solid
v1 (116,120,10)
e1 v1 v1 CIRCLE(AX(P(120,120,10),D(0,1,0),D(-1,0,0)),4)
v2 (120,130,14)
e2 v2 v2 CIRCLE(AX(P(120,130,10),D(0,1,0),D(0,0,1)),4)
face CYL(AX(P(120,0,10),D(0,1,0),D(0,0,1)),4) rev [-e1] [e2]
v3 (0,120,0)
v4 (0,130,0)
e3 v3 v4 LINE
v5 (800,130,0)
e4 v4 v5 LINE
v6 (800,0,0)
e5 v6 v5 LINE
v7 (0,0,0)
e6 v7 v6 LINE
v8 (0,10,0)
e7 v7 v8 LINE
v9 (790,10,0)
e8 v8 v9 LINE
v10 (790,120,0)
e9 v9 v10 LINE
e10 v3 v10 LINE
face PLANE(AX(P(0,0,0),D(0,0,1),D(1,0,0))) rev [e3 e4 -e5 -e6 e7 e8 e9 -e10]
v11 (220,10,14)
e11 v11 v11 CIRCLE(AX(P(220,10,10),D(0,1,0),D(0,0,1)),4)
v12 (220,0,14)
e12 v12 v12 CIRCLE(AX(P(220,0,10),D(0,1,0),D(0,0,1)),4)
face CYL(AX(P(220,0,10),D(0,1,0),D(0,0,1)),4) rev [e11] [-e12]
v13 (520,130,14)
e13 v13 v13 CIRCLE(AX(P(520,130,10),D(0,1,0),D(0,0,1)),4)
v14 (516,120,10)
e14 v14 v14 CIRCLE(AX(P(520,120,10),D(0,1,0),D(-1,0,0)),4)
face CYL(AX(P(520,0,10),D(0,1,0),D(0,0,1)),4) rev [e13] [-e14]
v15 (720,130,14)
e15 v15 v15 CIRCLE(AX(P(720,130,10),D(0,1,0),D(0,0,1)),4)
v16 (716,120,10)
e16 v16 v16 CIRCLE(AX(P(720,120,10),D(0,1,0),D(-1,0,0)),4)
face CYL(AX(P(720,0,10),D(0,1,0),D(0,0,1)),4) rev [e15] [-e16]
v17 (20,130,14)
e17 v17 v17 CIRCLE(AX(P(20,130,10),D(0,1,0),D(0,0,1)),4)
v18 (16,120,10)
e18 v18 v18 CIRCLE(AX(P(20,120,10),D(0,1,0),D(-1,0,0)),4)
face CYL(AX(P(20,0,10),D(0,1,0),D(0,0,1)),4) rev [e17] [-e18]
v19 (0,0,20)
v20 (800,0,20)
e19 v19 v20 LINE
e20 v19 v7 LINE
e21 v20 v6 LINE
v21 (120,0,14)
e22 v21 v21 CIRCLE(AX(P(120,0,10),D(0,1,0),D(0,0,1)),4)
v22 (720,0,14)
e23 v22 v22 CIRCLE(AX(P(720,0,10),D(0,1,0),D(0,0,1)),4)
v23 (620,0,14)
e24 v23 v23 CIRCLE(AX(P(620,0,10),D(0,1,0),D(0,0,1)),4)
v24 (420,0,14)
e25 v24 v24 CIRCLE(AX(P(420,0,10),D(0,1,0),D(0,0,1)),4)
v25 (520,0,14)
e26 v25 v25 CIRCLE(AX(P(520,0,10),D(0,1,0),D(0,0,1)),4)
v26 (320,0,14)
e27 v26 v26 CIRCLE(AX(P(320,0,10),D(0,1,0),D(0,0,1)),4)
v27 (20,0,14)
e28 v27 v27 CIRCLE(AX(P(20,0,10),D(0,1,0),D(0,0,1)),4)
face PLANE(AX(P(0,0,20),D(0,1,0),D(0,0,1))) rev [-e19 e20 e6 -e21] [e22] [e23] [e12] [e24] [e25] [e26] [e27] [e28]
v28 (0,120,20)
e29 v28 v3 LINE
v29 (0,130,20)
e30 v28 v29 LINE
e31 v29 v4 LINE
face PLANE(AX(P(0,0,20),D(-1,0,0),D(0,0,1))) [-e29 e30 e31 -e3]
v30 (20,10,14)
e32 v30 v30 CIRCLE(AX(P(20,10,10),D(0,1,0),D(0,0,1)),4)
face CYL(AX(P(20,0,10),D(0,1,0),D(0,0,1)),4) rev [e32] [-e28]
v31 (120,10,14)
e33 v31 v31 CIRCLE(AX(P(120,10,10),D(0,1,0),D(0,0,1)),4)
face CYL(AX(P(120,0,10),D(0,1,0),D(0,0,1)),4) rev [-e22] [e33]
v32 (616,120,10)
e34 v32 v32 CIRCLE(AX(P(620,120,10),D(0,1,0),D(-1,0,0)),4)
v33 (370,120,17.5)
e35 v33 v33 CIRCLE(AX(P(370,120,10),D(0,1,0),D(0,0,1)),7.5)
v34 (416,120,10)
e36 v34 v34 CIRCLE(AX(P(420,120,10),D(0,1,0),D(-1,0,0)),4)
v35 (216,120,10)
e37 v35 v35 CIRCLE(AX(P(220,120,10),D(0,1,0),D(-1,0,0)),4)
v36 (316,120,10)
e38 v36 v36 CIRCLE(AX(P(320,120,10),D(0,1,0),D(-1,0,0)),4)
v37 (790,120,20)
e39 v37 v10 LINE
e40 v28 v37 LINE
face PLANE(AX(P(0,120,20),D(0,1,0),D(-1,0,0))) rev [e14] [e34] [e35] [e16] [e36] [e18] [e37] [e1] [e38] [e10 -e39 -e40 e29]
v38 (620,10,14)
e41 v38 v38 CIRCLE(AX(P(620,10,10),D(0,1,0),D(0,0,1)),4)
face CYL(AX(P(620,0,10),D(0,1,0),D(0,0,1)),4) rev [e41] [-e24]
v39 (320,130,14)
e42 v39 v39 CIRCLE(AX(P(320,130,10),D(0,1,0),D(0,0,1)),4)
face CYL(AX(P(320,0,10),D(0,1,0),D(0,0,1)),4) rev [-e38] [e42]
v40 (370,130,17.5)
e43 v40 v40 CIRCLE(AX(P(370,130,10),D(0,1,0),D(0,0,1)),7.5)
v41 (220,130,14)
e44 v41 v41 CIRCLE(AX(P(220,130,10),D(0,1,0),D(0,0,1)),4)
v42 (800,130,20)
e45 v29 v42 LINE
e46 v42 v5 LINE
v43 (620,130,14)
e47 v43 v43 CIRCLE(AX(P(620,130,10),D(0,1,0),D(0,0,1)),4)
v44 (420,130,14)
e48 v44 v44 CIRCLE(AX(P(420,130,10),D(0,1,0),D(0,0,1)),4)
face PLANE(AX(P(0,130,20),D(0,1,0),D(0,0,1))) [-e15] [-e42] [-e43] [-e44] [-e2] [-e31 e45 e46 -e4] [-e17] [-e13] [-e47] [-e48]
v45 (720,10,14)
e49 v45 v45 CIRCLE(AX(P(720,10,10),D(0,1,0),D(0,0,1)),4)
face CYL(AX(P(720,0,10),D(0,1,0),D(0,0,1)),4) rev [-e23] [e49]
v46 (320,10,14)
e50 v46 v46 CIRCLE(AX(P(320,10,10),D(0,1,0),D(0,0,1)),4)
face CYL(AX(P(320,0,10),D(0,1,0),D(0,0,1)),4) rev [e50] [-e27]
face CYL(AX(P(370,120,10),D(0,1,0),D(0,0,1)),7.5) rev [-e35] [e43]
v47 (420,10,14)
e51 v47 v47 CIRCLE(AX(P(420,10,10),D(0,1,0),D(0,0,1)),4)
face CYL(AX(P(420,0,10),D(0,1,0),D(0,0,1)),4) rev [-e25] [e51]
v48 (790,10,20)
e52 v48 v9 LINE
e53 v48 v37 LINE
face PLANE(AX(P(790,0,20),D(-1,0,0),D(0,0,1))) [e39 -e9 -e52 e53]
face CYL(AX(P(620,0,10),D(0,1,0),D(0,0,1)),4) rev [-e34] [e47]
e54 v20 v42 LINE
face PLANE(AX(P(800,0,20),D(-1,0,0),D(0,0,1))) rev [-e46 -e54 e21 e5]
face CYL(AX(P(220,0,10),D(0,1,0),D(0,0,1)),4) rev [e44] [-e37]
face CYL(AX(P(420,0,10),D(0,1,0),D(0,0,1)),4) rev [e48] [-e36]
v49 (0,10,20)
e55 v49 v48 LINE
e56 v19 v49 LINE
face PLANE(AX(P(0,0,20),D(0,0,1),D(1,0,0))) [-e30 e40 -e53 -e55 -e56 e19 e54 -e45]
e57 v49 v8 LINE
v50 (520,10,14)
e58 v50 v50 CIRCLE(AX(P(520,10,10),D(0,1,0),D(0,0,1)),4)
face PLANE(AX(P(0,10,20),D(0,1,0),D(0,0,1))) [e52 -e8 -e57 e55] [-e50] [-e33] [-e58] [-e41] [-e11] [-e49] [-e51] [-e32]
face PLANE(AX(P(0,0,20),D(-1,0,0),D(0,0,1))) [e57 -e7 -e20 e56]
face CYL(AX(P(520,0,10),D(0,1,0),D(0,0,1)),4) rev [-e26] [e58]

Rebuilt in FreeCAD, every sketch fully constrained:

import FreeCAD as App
import Part
import Sketcher
from FreeCAD import Vector


def add_polygon(sketch, points):
    """Adds a closed chain of lines whose ends are joined by coincident constraints."""
    first, n = sketch.GeometryCount, len(points)
    for a, b in zip(points, points[1:] + points[:1]):
        sketch.addGeometry(Part.LineSegment(App.Vector(*a, 0), App.Vector(*b, 0)), False)
    for i in range(n):
        sketch.addConstraint(Sketcher.Constraint("Coincident", first + i, 2, first + (i + 1) % n, 1))

doc = App.newDocument("Part")
body = doc.addObject("PartDesign::Body", "Body")

sketch1 = body.newObject("Sketcher::SketchObject", "Sketch")
sketch1.AttachmentSupport = (doc.getObject("XY_Plane"), [""])
sketch1.MapMode = "FlatFace"
add_polygon(sketch1, [(0, 130), (0, 120), (790, 120), (790, 10), (0, 10), (0, 0), (800, 0), (800, 130)])
sketch1.addConstraint(Sketcher.Constraint("Vertical", 0))
sketch1.addConstraint(Sketcher.Constraint("Horizontal", 1))
sketch1.addConstraint(Sketcher.Constraint("Vertical", 2))
sketch1.addConstraint(Sketcher.Constraint("Horizontal", 3))
sketch1.addConstraint(Sketcher.Constraint("Vertical", 4))
sketch1.addConstraint(Sketcher.Constraint("Horizontal", 5))
sketch1.addConstraint(Sketcher.Constraint("Vertical", 6))
sketch1.addConstraint(Sketcher.Constraint("Horizontal", 7))
sketch1.addConstraint(Sketcher.Constraint("Coincident", 4, 2, -1, 1))
sketch1.addConstraint(Sketcher.Constraint("PointOnObject", 0, 2, -2))
sketch1.addConstraint(Sketcher.Constraint("Equal", 0, 4))
sketch1.addConstraint(Sketcher.Constraint("DistanceX", 1, 1, 1, 2, 790.0))
sketch1.addConstraint(Sketcher.Constraint("DistanceX", 5, 1, 5, 2, 800.0))
sketch1.addConstraint(Sketcher.Constraint("DistanceY", 0, 2, 0, 1, 10.0))
sketch1.addConstraint(Sketcher.Constraint("DistanceY", 2, 2, 2, 1, 110.0))
pad1 = body.newObject("PartDesign::Pad", "Pad")
pad1.Profile = sketch1
pad1.Length = 20

sketch2 = body.newObject("Sketcher::SketchObject", "Sketch001")
sketch2.AttachmentSupport = (doc.getObject("XZ_Plane"), [""])
sketch2.MapMode = "FlatFace"
sketch2.AttachmentOffset = App.Placement(Vector(0, 0, -130), App.Rotation())
sketch2.addGeometry(Part.Circle(Vector(20, 10, 0), Vector(0, 0, 1), 4), False)
sketch2.addConstraint(Sketcher.Constraint("Diameter", 0, 8.0))
sketch2.addConstraint(Sketcher.Constraint("DistanceX", -1, 1, 0, 3, 20.0))
sketch2.addConstraint(Sketcher.Constraint("DistanceY", -1, 1, 0, 3, 10.0))
pocket1 = body.newObject("PartDesign::Pocket", "Pocket")
pocket1.Profile = sketch2
pocket1.Type = "ThroughAll"
pocket1.Reversed = True
doc.recompute()

linearpattern = body.newObject("PartDesign::LinearPattern", "LinearPattern")
linearpattern.Originals = [pocket1]
linearpattern.Direction = (doc.getObject("X_Axis"), [""])
linearpattern.Mode = "offset"
linearpattern.Offset = 100
linearpattern.Occurrences = 8
body.Tip = linearpattern

sketch3 = body.newObject("Sketcher::SketchObject", "Sketch002")
sketch3.AttachmentSupport = (doc.getObject("XZ_Plane"), [""])
sketch3.MapMode = "FlatFace"
sketch3.AttachmentOffset = App.Placement(Vector(0, 0, -130), App.Rotation())
sketch3.addGeometry(Part.Circle(Vector(370, 10, 0), Vector(0, 0, 1), 7.5), False)
sketch3.addConstraint(Sketcher.Constraint("Diameter", 0, 15.0))
sketch3.addConstraint(Sketcher.Constraint("DistanceX", -1, 1, 0, 3, 370.0))
sketch3.addConstraint(Sketcher.Constraint("DistanceY", -1, 1, 0, 3, 10.0))
pocket2 = body.newObject("PartDesign::Pocket", "Pocket001")
pocket2.Profile = sketch3
pocket2.Length = 10
pocket2.Reversed = True

doc.recompute()
